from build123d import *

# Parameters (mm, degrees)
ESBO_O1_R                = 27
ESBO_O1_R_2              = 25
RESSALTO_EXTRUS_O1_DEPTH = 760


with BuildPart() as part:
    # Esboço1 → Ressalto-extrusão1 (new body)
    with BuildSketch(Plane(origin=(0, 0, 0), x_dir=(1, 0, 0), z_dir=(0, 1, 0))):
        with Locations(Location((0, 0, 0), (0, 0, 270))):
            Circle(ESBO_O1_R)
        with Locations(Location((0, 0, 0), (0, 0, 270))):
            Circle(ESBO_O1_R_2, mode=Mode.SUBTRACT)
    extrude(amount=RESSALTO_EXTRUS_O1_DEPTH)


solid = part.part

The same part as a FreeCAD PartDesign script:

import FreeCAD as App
import Part
import Sketcher
from FreeCAD import Vector
Q = App.Units.Quantity

doc = App.newDocument("Part")
body = doc.addObject("PartDesign::Body", "Body")

sketch1 = body.newObject("Sketcher::SketchObject", "Sketch")
sketch1.AttachmentSupport = (doc.getObject("XZ_Plane"), [""])
sketch1.MapMode = "FlatFace"
sketch1.addGeometry(Part.Circle(Vector(0, 0, 0), Vector(0, 0, 1), 27), False)
sketch1.addGeometry(Part.Circle(Vector(0, 0, 0), Vector(0, 0, 1), 25), False)
sketch1.addConstraint(Sketcher.Constraint("Coincident", 0, 3, -1, 1))
sketch1.addConstraint(Sketcher.Constraint("Coincident", 1, 3, -1, 1))
sketch1.addConstraint(Sketcher.Constraint("Diameter", 0, Q("54 mm")))
sketch1.addConstraint(Sketcher.Constraint("Diameter", 1, Q("50 mm")))
pad1 = body.newObject("PartDesign::Pad", "Pad")
pad1.Profile = sketch1
pad1.Length = 760
pad1.Reversed = True

doc.recompute()
